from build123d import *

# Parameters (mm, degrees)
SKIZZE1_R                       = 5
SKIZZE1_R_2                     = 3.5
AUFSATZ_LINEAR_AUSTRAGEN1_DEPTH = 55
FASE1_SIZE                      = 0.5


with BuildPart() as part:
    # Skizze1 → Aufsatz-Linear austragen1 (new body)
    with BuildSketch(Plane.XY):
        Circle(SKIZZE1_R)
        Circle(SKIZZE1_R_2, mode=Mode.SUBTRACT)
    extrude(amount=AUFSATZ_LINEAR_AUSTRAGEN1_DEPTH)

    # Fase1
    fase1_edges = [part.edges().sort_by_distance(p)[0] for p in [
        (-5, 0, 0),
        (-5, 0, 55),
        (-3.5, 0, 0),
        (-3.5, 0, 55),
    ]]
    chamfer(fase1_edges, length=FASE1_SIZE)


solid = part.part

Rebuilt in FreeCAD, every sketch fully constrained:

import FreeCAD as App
import Part
import Sketcher
Q = App.Units.Quantity


def edges_at(feature, points):
    """Names of the edges that pass closest to the given points."""
    edges = feature.Shape.Edges
    near = lambda p: min(range(len(edges)), key=lambda i: edges[i].distToShape(Part.Vertex(*p))[0])
    return sorted({f"Edge{near(p) + 1}" for p in points})

doc = App.newDocument("Part")
body = doc.addObject("PartDesign::Body", "Body")

# Sketch on XY plane
sketch1 = body.newObject("Sketcher::SketchObject", "Sketch")
sketch1.AttachmentSupport = (doc.getObject("XY_Plane"), [""])
sketch1.MapMode = "FlatFace"
sketch1.addGeometry(Part.Circle(App.Vector(0, 0, 0), App.Vector(0, 0, 1), 5), False)
sketch1.addGeometry(Part.Circle(App.Vector(0, 0, 0), App.Vector(0, 0, 1), 3.5), False)
sketch1.addConstraint(Sketcher.Constraint("Coincident", 0, 3, -1, 1))
sketch1.addConstraint(Sketcher.Constraint("Coincident", 1, 3, -1, 1))
sketch1.addConstraint(Sketcher.Constraint("Diameter", 0, Q("10 mm")))
sketch1.addConstraint(Sketcher.Constraint("Diameter", 1, Q("7 mm")))
pad1 = body.newObject("PartDesign::Pad", "Pad")
pad1.Profile = sketch1
pad1.Length = 55
doc.recompute()

chamfer = body.newObject("PartDesign::Chamfer", "Chamfer")
chamfer.Base = (pad1, edges_at(pad1, [
    (-5, 0, 0),
    (-5, 0, 55),
    (-3.5, 0, 0),
    (-3.5, 0, 55),
]))
chamfer.Size = 0.5

doc.recompute()
